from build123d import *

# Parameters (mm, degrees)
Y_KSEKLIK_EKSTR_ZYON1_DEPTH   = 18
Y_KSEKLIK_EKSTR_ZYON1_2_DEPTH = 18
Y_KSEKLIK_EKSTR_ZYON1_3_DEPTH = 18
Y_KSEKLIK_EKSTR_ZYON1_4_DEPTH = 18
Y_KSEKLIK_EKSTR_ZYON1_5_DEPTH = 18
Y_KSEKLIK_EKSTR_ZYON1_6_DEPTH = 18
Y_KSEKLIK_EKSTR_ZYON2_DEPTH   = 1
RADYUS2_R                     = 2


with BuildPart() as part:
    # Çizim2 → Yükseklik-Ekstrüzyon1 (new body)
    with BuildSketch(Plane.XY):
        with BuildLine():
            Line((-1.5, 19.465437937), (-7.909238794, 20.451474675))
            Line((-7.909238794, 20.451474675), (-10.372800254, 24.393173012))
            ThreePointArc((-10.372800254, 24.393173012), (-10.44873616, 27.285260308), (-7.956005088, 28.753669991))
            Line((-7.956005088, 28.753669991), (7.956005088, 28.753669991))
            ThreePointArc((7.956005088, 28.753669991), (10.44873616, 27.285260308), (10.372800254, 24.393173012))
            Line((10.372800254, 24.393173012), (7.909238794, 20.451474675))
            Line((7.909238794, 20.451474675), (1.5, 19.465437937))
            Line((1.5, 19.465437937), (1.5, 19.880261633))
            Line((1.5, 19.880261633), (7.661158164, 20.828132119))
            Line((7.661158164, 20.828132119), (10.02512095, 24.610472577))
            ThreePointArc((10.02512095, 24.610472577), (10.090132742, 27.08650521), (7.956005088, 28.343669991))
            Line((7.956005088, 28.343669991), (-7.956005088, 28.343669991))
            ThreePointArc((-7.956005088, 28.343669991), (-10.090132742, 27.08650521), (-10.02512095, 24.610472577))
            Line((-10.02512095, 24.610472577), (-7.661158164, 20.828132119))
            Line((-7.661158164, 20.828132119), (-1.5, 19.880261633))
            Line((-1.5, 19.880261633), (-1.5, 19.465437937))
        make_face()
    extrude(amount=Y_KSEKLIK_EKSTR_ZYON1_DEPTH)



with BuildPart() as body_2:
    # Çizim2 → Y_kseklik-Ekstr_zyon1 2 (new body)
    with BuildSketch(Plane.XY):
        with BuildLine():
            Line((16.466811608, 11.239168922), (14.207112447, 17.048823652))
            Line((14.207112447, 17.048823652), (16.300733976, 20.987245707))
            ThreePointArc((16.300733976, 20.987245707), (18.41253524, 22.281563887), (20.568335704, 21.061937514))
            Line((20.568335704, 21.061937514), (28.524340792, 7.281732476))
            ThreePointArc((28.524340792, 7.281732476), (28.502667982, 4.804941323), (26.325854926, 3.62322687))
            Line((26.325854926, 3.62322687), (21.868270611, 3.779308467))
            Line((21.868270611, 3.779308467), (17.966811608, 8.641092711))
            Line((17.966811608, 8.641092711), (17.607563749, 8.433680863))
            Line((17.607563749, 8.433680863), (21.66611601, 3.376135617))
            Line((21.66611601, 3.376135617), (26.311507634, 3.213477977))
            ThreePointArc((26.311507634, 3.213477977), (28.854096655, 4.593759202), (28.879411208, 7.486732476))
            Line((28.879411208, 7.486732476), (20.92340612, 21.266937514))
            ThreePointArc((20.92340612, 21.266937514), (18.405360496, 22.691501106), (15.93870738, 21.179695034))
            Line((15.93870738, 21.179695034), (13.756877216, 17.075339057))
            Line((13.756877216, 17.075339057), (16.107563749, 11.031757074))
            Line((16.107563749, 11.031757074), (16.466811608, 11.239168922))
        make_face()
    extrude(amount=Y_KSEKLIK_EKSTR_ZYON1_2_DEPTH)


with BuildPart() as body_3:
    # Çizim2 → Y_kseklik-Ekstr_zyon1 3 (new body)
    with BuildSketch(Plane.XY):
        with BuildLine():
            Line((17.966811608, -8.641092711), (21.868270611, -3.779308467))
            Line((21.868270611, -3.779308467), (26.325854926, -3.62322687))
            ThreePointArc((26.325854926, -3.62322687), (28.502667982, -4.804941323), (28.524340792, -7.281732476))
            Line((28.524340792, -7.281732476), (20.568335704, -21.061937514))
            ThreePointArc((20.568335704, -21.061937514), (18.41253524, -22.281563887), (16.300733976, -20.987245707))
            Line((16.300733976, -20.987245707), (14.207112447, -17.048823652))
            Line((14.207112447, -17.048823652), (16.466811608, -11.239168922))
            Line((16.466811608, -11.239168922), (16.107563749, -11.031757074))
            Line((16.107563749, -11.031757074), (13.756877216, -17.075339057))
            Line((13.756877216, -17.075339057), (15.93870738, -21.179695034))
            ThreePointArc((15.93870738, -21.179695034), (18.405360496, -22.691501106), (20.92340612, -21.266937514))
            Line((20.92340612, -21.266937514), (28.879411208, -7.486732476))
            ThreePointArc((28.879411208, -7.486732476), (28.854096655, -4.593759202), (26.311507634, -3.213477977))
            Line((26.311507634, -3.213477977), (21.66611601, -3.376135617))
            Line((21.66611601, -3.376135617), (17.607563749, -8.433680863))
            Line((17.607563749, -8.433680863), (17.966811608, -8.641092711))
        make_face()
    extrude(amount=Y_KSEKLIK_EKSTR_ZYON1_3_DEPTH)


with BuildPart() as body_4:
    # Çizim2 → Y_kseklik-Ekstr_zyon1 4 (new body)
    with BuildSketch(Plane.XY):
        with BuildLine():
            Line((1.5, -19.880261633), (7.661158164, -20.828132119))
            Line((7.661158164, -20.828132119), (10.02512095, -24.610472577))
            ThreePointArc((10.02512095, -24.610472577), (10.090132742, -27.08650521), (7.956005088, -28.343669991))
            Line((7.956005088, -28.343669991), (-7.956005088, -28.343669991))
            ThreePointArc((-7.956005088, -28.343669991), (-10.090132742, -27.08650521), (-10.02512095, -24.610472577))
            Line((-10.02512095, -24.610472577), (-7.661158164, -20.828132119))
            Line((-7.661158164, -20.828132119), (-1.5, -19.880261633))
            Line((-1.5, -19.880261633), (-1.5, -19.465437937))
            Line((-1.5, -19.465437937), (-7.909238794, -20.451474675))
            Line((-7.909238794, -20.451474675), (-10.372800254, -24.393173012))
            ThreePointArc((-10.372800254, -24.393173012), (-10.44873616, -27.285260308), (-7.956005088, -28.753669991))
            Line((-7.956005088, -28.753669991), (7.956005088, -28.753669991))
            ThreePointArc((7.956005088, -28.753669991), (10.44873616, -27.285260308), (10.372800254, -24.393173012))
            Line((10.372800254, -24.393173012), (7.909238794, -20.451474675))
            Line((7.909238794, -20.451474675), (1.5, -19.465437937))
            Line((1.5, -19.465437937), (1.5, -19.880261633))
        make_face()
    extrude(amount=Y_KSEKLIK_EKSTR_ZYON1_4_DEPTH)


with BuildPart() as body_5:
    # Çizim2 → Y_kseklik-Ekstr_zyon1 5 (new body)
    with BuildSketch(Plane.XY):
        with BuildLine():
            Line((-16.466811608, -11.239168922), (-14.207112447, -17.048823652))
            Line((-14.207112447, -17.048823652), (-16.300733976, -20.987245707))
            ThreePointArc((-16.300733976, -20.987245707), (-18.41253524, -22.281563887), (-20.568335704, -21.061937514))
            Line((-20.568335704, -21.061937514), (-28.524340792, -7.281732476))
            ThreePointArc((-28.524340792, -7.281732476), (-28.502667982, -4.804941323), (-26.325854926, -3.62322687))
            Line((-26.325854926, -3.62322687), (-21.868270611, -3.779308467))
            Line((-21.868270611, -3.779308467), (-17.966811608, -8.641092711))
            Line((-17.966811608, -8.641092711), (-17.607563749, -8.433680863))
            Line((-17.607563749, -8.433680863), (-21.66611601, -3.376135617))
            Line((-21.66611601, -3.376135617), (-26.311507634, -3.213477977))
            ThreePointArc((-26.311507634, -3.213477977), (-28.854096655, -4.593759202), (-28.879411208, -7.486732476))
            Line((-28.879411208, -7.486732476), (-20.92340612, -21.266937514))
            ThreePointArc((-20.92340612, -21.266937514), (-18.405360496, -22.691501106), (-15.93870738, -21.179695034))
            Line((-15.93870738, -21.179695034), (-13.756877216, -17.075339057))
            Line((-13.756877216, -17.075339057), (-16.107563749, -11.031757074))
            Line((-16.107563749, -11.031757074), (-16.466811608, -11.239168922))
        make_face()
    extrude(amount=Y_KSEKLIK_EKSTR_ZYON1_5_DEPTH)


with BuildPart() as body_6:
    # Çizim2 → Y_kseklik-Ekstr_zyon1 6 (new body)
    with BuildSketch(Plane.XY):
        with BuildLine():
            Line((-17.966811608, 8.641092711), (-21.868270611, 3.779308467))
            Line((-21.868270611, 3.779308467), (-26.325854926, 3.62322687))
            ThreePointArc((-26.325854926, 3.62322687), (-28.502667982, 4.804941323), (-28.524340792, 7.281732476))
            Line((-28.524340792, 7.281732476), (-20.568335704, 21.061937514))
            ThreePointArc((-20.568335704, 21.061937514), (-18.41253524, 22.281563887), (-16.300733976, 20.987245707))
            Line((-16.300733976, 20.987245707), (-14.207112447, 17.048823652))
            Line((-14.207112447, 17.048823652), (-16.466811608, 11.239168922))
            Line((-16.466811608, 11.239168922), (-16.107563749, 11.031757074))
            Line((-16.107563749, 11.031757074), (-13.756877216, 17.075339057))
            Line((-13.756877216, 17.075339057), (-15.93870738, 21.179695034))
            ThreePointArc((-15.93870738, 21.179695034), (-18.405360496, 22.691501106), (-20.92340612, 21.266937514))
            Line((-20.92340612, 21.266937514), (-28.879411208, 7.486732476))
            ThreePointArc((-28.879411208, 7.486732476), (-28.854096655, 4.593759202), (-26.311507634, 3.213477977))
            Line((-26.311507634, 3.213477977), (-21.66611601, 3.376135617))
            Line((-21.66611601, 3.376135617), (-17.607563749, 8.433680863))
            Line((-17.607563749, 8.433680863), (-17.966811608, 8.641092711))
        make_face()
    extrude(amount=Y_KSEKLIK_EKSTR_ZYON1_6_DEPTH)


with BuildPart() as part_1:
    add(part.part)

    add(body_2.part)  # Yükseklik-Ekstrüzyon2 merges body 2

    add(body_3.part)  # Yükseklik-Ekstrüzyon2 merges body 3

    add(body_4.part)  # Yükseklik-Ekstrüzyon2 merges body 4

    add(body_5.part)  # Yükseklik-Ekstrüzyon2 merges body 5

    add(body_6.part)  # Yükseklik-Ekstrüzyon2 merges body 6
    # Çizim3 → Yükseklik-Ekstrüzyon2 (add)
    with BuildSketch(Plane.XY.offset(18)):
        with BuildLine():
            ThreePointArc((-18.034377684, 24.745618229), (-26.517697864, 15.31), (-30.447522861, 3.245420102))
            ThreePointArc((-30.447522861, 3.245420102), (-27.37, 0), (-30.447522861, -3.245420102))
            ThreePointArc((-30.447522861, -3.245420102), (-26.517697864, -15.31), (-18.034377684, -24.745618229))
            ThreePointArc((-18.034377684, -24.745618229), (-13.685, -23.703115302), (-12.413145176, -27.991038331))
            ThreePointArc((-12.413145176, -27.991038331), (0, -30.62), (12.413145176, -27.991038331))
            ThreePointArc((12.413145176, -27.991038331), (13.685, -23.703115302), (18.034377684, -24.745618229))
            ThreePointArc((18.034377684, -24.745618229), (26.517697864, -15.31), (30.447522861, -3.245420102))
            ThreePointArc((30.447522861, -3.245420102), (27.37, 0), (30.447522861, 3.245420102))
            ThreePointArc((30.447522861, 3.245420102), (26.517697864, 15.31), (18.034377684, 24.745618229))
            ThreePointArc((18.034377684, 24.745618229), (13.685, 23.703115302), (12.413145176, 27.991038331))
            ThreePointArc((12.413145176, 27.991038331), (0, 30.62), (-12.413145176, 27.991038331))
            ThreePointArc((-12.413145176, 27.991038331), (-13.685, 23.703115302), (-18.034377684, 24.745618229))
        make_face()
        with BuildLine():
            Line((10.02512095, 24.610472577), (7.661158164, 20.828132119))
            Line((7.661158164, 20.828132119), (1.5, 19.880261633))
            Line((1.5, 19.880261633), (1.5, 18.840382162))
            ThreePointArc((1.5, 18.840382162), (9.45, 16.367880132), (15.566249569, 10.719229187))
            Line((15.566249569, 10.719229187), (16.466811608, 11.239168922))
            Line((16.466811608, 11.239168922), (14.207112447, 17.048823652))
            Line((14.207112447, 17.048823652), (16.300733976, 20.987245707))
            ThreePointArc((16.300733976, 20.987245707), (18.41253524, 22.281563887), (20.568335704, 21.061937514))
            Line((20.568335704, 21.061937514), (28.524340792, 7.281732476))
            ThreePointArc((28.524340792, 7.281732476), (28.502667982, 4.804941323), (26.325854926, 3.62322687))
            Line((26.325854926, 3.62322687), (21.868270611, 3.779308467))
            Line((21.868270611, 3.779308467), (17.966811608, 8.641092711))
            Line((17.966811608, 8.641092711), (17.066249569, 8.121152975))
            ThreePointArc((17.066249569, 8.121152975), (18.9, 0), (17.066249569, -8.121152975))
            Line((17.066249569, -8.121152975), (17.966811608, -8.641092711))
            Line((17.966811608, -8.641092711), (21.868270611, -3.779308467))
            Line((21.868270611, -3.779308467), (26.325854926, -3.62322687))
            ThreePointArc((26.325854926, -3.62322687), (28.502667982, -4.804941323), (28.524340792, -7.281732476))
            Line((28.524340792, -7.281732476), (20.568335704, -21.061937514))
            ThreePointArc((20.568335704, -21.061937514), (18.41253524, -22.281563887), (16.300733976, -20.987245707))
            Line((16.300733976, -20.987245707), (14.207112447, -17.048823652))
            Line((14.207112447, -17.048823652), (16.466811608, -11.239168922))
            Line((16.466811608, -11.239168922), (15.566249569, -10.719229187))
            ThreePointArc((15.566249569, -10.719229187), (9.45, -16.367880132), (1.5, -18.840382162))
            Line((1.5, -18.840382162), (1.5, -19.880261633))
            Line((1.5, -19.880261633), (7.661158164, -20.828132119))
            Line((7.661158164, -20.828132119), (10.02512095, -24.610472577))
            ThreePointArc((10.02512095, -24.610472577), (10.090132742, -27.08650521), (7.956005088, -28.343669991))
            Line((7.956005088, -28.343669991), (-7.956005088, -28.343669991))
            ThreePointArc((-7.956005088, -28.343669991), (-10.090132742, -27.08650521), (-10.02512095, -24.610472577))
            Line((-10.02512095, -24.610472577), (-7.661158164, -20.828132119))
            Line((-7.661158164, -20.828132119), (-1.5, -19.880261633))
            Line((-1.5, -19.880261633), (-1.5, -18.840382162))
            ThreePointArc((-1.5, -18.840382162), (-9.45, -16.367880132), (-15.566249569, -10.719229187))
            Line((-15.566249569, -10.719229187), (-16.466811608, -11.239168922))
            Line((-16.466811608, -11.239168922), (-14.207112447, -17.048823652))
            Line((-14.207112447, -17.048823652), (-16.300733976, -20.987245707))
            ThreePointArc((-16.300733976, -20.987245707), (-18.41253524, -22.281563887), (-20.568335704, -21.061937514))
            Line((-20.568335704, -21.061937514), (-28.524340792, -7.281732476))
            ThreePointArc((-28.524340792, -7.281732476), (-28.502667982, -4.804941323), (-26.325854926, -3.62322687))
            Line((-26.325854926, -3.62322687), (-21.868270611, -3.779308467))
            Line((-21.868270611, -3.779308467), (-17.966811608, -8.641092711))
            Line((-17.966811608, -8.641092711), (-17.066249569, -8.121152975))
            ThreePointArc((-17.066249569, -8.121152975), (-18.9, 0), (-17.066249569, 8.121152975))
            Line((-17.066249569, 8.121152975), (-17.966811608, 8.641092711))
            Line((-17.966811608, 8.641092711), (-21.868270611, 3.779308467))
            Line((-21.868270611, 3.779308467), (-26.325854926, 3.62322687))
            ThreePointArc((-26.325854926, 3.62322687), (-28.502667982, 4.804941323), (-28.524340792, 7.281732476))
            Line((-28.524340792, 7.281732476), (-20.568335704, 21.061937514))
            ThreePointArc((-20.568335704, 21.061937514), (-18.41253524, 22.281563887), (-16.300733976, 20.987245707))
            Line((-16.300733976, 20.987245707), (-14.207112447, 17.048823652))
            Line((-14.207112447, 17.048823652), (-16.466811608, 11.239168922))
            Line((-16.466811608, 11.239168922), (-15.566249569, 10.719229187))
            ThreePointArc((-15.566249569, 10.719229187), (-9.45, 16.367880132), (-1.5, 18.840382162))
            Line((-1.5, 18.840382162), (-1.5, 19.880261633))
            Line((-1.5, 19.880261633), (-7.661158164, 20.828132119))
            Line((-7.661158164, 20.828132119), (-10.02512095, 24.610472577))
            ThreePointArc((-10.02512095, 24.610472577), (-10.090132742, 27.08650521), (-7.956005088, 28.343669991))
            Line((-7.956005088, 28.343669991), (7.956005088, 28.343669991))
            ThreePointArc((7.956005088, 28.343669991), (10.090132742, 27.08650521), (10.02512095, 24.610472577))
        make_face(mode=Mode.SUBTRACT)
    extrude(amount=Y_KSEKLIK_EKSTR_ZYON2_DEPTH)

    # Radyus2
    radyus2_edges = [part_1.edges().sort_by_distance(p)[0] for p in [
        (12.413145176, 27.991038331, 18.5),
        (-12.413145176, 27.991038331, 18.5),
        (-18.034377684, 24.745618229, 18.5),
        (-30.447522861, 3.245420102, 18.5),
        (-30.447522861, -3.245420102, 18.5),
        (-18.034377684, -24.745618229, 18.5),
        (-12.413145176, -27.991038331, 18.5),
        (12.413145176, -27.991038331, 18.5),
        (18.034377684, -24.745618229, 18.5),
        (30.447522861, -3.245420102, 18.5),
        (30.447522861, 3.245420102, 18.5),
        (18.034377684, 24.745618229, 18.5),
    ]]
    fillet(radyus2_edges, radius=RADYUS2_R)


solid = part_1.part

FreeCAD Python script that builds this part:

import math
import FreeCAD as App
import Part
import Sketcher

V = App.Vector
Q = App.Units.Quantity


def edges_at(feature, points):
    """Names of the edges that pass closest to the given points."""
    edges = feature.Shape.Edges
    near = lambda p: min(range(len(edges)), key=lambda i: edges[i].distToShape(Part.Vertex(*p))[0])
    return sorted({f"Edge{near(p) + 1}" for p in points})

doc = App.newDocument("Part")
body = doc.addObject("PartDesign::Body", "Body")

# Sketch on XY plane
sketch1 = body.newObject("Sketcher::SketchObject", "Sketch")
sketch1.AttachmentSupport = (doc.getObject("XY_Plane"), [""])
sketch1.MapMode = "FlatFace"
sketch1.addGeometry([
    Part.LineSegment(V(-7.91, 20.45, 0), V(-1.5, 19.47, 0)),  # 0
    Part.LineSegment(V(-1.5, 19.47, 0), V(-1.5, 19.88, 0)),  # 1
    Part.LineSegment(V(-1.5, 19.88, 0), V(-7.66, 20.83, 0)),  # 2
    Part.LineSegment(V(-7.66, 20.83, 0), V(-10.03, 24.61, 0)),  # 3
    Part.ArcOfCircle(Part.Circle(V(-7.96, 25.9, 0), V(0, 0, 1), 2.44), math.radians(90), math.radians(212)),  # 4
    Part.LineSegment(V(-7.96, 28.34, 0), V(7.96, 28.34, 0)),  # 5
    Part.ArcOfCircle(Part.Circle(V(7.96, 25.9, 0), V(0, 0, 1), 2.44), math.radians(-32), math.radians(90)),  # 6
    Part.LineSegment(V(10.03, 24.61, 0), V(7.66, 20.83, 0)),  # 7
    Part.LineSegment(V(7.66, 20.83, 0), V(1.5, 19.88, 0)),  # 8
    Part.LineSegment(V(1.5, 19.88, 0), V(1.5, 19.47, 0)),  # 9
    Part.LineSegment(V(1.5, 19.47, 0), V(7.91, 20.45, 0)),  # 10
    Part.LineSegment(V(7.91, 20.45, 0), V(10.37, 24.39, 0)),  # 11
    Part.ArcOfCircle(Part.Circle(V(7.96, 25.9, 0), V(0, 0, 1), 2.85), math.radians(-32), math.radians(90)),  # 12
    Part.LineSegment(V(7.96, 28.75, 0), V(-7.96, 28.75, 0)),  # 13
    Part.ArcOfCircle(Part.Circle(V(-7.96, 25.9, 0), V(0, 0, 1), 2.85), math.radians(90), math.radians(212)),  # 14
    Part.LineSegment(V(-10.37, 24.39, 0), V(-7.91, 20.45, 0)),  # 15
], False)
sketch1.addConstraint([
    Sketcher.Constraint("Coincident", 0, 2, 1, 1),
    Sketcher.Constraint("Coincident", 1, 2, 2, 1),
    Sketcher.Constraint("Coincident", 2, 2, 3, 1),
    Sketcher.Constraint("Tangent", 3, 2, 4, 2),
    Sketcher.Constraint("Tangent", 4, 1, 5, 1),
    Sketcher.Constraint("Tangent", 5, 2, 6, 2),
    Sketcher.Constraint("Tangent", 6, 1, 7, 1),
    Sketcher.Constraint("Coincident", 7, 2, 8, 1),
    Sketcher.Constraint("Coincident", 8, 2, 9, 1),
    Sketcher.Constraint("Coincident", 9, 2, 10, 1),
    Sketcher.Constraint("Coincident", 10, 2, 11, 1),
    Sketcher.Constraint("Tangent", 11, 2, 12, 1),
    Sketcher.Constraint("Tangent", 12, 2, 13, 1),
    Sketcher.Constraint("Tangent", 13, 2, 14, 1),
    Sketcher.Constraint("Tangent", 14, 2, 15, 1),
    Sketcher.Constraint("Coincident", 15, 2, 0, 1),
    Sketcher.Constraint("Vertical", 1),
    Sketcher.Constraint("Horizontal", 5),
    Sketcher.Constraint("Vertical", 9),
    Sketcher.Constraint("Horizontal", 13),
    Sketcher.Constraint("Coincident", 12, 3, 6, 3),
    Sketcher.Constraint("Coincident", 14, 3, 4, 3),
    Sketcher.Constraint("Equal", 4, 6),
    Sketcher.Constraint("Symmetric", 3, 2, 6, 1, -2),
    Sketcher.Constraint("Symmetric", 1, 2, 8, 2, -2),
    Sketcher.Constraint("Symmetric", 10, 2, 15, 2, -2),
    Sketcher.Constraint("Parallel", 0, 2),
    Sketcher.Constraint("Parallel", 8, 10),
    Sketcher.Constraint("Parallel", 7, 11),
    Sketcher.Constraint("Horizontal", 2, 2, 7, 2),
    Sketcher.Constraint("Radius", 4, 2.44),
    Sketcher.Constraint("Radius", 12, 2.85),
    Sketcher.Constraint("DistanceX", 1, 2, 8, 2, 3.0),
    Sketcher.Constraint("DistanceX", 5, 1, 5, 2, 15.91201),
    Sketcher.Constraint("DistanceX", -1, 1, 11, 2, 10.3728),
    Sketcher.Constraint("DistanceY", 15, 2, 14, 2, 3.941698),
    Sketcher.Constraint("DistanceY", 1, 1, 1, 2, 0.414824),
    Sketcher.Constraint("DistanceY", -1, 1, 4, 3, 25.90367),
    Sketcher.Constraint("DistanceY", -1, 1, 1, 2, 19.880262),
])
pad1 = body.newObject("PartDesign::Pad", "Pad")
pad1.Profile = sketch1
pad1.Length = 18
body2 = doc.addObject("PartDesign::Body", "Body001")

# Sketch on XY plane
sketch2 = body2.newObject("Sketcher::SketchObject", "Sketch001")
sketch2.AttachmentSupport = (doc.getObject("XY_Plane001"), [""])
sketch2.MapMode = "FlatFace"
sketch2.addGeometry([
    Part.LineSegment(V(16.47, 11.24, 0), V(14.21, 17.05, 0)),  # 0
    Part.LineSegment(V(14.21, 17.05, 0), V(16.3, 20.99, 0)),  # 1
    Part.ArcOfCircle(Part.Circle(V(18.46, 19.84, 0), V(0, 0, 1), 2.44), math.radians(30), math.radians(152)),  # 2
    Part.LineSegment(V(20.57, 21.06, 0), V(28.52, 7.28, 0)),  # 3
    Part.ArcOfCircle(Part.Circle(V(26.41, 6.06, 0), V(0, 0, 1), 2.44), math.radians(-92), math.radians(30)),  # 4
    Part.LineSegment(V(26.33, 3.62, 0), V(21.87, 3.78, 0)),  # 5
    Part.LineSegment(V(21.87, 3.78, 0), V(17.97, 8.64, 0)),  # 6
    Part.LineSegment(V(17.97, 8.64, 0), V(17.61, 8.43, 0)),  # 7
    Part.LineSegment(V(17.61, 8.43, 0), V(21.67, 3.38, 0)),  # 8
    Part.LineSegment(V(21.67, 3.38, 0), V(26.31, 3.21, 0)),  # 9
    Part.ArcOfCircle(Part.Circle(V(26.41, 6.06, 0), V(0, 0, 1), 2.85), math.radians(-92), math.radians(30)),  # 10
    Part.LineSegment(V(28.88, 7.49, 0), V(20.92, 21.27, 0)),  # 11
    Part.ArcOfCircle(Part.Circle(V(18.46, 19.84, 0), V(0, 0, 1), 2.85), math.radians(30), math.radians(152)),  # 12
    Part.LineSegment(V(15.94, 21.18, 0), V(13.76, 17.08, 0)),  # 13
    Part.LineSegment(V(13.76, 17.08, 0), V(16.11, 11.03, 0)),  # 14
    Part.LineSegment(V(16.11, 11.03, 0), V(16.47, 11.24, 0)),  # 15
], False)
sketch2.addConstraint([
    Sketcher.Constraint("Coincident", 0, 2, 1, 1),
    Sketcher.Constraint("Tangent", 1, 2, 2, 2),
    Sketcher.Constraint("Tangent", 2, 1, 3, 1),
    Sketcher.Constraint("Tangent", 3, 2, 4, 2),
    Sketcher.Constraint("Tangent", 4, 1, 5, 1),
    Sketcher.Constraint("Coincident", 5, 2, 6, 1),
    Sketcher.Constraint("Coincident", 6, 2, 7, 1),
    Sketcher.Constraint("Coincident", 7, 2, 8, 1),
    Sketcher.Constraint("Coincident", 8, 2, 9, 1),
    Sketcher.Constraint("Tangent", 9, 2, 10, 1),
    Sketcher.Constraint("Tangent", 10, 2, 11, 1),
    Sketcher.Constraint("Tangent", 11, 2, 12, 1),
    Sketcher.Constraint("Tangent", 12, 2, 13, 1),
    Sketcher.Constraint("Coincident", 13, 2, 14, 1),
    Sketcher.Constraint("Coincident", 14, 2, 15, 1),
    Sketcher.Constraint("Coincident", 15, 2, 0, 1),
    Sketcher.Constraint("Coincident", 10, 3, 4, 3),
    Sketcher.Constraint("Coincident", 12, 3, 2, 3),
    Sketcher.Constraint("Equal", 2, 4),
    Sketcher.Constraint("Equal", 10, 12),
    Sketcher.Constraint("Perpendicular", 3, 7),
    Sketcher.Constraint("Parallel", 6, 8),
    Sketcher.Constraint("Parallel", 5, 9),
    Sketcher.Constraint("Parallel", 1, 13),
    Sketcher.Constraint("Parallel", 0, 14),
    Sketcher.Constraint("Perpendicular", 11, 15),
    Sketcher.Constraint("Equal", 1, 5),
    Sketcher.Constraint("Equal", 0, 6),
    Sketcher.Constraint("Equal", 9, 13),
    Sketcher.Constraint("Equal", 8, 14),
    Sketcher.Constraint("Equal", 7, 15),
    Sketcher.Constraint("Angle", 3, Q("-60 deg")),
    Sketcher.Constraint("Radius", 2, 2.44),
    Sketcher.Constraint("Radius", 10, 2.85),
    Sketcher.Constraint("DistanceX", 14, 2, 7, 2, 1.5),
    Sketcher.Constraint("DistanceX", 1, 2, 12, 3, 2.1545),
    Sketcher.Constraint("DistanceX", 0, 2, 6, 2, 3.759699),
    Sketcher.Constraint("DistanceY", 13, 2, 2, 3, 2.766598),
    Sketcher.Constraint("Distance", 3, 15.91201),
    Sketcher.Constraint("DistanceX", -1, 1, 4, 3, 26.411239),
    Sketcher.Constraint("DistanceX", -1, 1, 5, 2, 21.868271),
    Sketcher.Constraint("DistanceY", -1, 1, 5, 2, 3.779308),
])
pad2 = body2.newObject("PartDesign::Pad", "Pad001")
pad2.Profile = sketch2
pad2.Length = 18
body3 = doc.addObject("PartDesign::Body", "Body002")

# Sketch on XY plane
sketch3 = body3.newObject("Sketcher::SketchObject", "Sketch002")
sketch3.AttachmentSupport = (doc.getObject("XY_Plane002"), [""])
sketch3.MapMode = "FlatFace"
sketch3.addGeometry([
    Part.LineSegment(V(17.97, -8.64, 0), V(21.87, -3.78, 0)),  # 0
    Part.LineSegment(V(21.87, -3.78, 0), V(26.33, -3.62, 0)),  # 1
    Part.ArcOfCircle(Part.Circle(V(26.41, -6.06, 0), V(0, 0, 1), 2.44), math.radians(-30), math.radians(92)),  # 2
    Part.LineSegment(V(28.52, -7.28, 0), V(20.57, -21.06, 0)),  # 3
    Part.ArcOfCircle(Part.Circle(V(18.46, -19.84, 0), V(0, 0, 1), 2.44), math.radians(-152), math.radians(-30)),  # 4
    Part.LineSegment(V(16.3, -20.99, 0), V(14.21, -17.05, 0)),  # 5
    Part.LineSegment(V(14.21, -17.05, 0), V(16.47, -11.24, 0)),  # 6
    Part.LineSegment(V(16.47, -11.24, 0), V(16.11, -11.03, 0)),  # 7
    Part.LineSegment(V(16.11, -11.03, 0), V(13.76, -17.08, 0)),  # 8
    Part.LineSegment(V(13.76, -17.08, 0), V(15.94, -21.18, 0)),  # 9
    Part.ArcOfCircle(Part.Circle(V(18.46, -19.84, 0), V(0, 0, 1), 2.85), math.radians(-152), math.radians(-30)),  # 10
    Part.LineSegment(V(20.92, -21.27, 0), V(28.88, -7.49, 0)),  # 11
    Part.ArcOfCircle(Part.Circle(V(26.41, -6.06, 0), V(0, 0, 1), 2.85), math.radians(-30), math.radians(92)),  # 12
    Part.LineSegment(V(26.31, -3.21, 0), V(21.67, -3.38, 0)),  # 13
    Part.LineSegment(V(21.67, -3.38, 0), V(17.61, -8.43, 0)),  # 14
    Part.LineSegment(V(17.61, -8.43, 0), V(17.97, -8.64, 0)),  # 15
], False)
sketch3.addConstraint([
    Sketcher.Constraint("Coincident", 0, 2, 1, 1),
    Sketcher.Constraint("Tangent", 1, 2, 2, 2),
    Sketcher.Constraint("Tangent", 2, 1, 3, 1),
    Sketcher.Constraint("Tangent", 3, 2, 4, 2),
    Sketcher.Constraint("Tangent", 4, 1, 5, 1),
    Sketcher.Constraint("Coincident", 5, 2, 6, 1),
    Sketcher.Constraint("Coincident", 6, 2, 7, 1),
    Sketcher.Constraint("Coincident", 7, 2, 8, 1),
    Sketcher.Constraint("Coincident", 8, 2, 9, 1),
    Sketcher.Constraint("Tangent", 9, 2, 10, 1),
    Sketcher.Constraint("Tangent", 10, 2, 11, 1),
    Sketcher.Constraint("Tangent", 11, 2, 12, 1),
    Sketcher.Constraint("Tangent", 12, 2, 13, 1),
    Sketcher.Constraint("Coincident", 13, 2, 14, 1),
    Sketcher.Constraint("Coincident", 14, 2, 15, 1),
    Sketcher.Constraint("Coincident", 15, 2, 0, 1),
    Sketcher.Constraint("Coincident", 10, 3, 4, 3),
    Sketcher.Constraint("Coincident", 12, 3, 2, 3),
    Sketcher.Constraint("Equal", 2, 4),
    Sketcher.Constraint("Equal", 10, 12),
    Sketcher.Constraint("Perpendicular", 3, 7),
    Sketcher.Constraint("Parallel", 6, 8),
    Sketcher.Constraint("Parallel", 5, 9),
    Sketcher.Constraint("Parallel", 1, 13),
    Sketcher.Constraint("Parallel", 0, 14),
    Sketcher.Constraint("Perpendicular", 11, 15),
    Sketcher.Constraint("Equal", 1, 5),
    Sketcher.Constraint("Equal", 0, 6),
    Sketcher.Constraint("Equal", 9, 13),
    Sketcher.Constraint("Equal", 8, 14),
    Sketcher.Constraint("Equal", 7, 15),
    Sketcher.Constraint("Angle", 3, Q("-120 deg")),
    Sketcher.Constraint("Radius", 2, 2.44),
    Sketcher.Constraint("Radius", 10, 2.85),
    Sketcher.Constraint("DistanceX", 7, 2, 14, 2, 1.5),
    Sketcher.Constraint("DistanceX", 4, 1, 10, 3, 2.1545),
    Sketcher.Constraint("DistanceX", 5, 2, 6, 2, 2.259699),
    Sketcher.Constraint("DistanceY", 4, 3, 8, 2, 2.766598),
    Sketcher.Constraint("Distance", 3, 15.91201),
    Sketcher.Constraint("DistanceX", -1, 1, 2, 3, 26.411239),
    Sketcher.Constraint("DistanceX", -1, 1, 0, 2, 21.868271),
    Sketcher.Constraint("DistanceY", 0, 2, -1, 1, 3.779308),
])
pad3 = body3.newObject("PartDesign::Pad", "Pad002")
pad3.Profile = sketch3
pad3.Length = 18
body4 = doc.addObject("PartDesign::Body", "Body003")

# Sketch on XY plane
sketch4 = body4.newObject("Sketcher::SketchObject", "Sketch003")
sketch4.AttachmentSupport = (doc.getObject("XY_Plane003"), [""])
sketch4.MapMode = "FlatFace"
sketch4.addGeometry([
    Part.LineSegment(V(1.5, -19.88, 0), V(7.66, -20.83, 0)),  # 0
    Part.LineSegment(V(7.66, -20.83, 0), V(10.03, -24.61, 0)),  # 1
    Part.ArcOfCircle(Part.Circle(V(7.96, -25.9, 0), V(0, 0, 1), 2.44), math.radians(-90), math.radians(32)),  # 2
    Part.LineSegment(V(7.96, -28.34, 0), V(-7.96, -28.34, 0)),  # 3
    Part.ArcOfCircle(Part.Circle(V(-7.96, -25.9, 0), V(0, 0, 1), 2.44), math.radians(148), math.radians(270)),  # 4
    Part.LineSegment(V(-10.03, -24.61, 0), V(-7.66, -20.83, 0)),  # 5
    Part.LineSegment(V(-7.66, -20.83, 0), V(-1.5, -19.88, 0)),  # 6
    Part.LineSegment(V(-1.5, -19.88, 0), V(-1.5, -19.47, 0)),  # 7
    Part.LineSegment(V(-1.5, -19.47, 0), V(-7.91, -20.45, 0)),  # 8
    Part.LineSegment(V(-7.91, -20.45, 0), V(-10.37, -24.39, 0)),  # 9
    Part.ArcOfCircle(Part.Circle(V(-7.96, -25.9, 0), V(0, 0, 1), 2.85), math.radians(148), math.radians(270)),  # 10
    Part.LineSegment(V(-7.96, -28.75, 0), V(7.96, -28.75, 0)),  # 11
    Part.ArcOfCircle(Part.Circle(V(7.96, -25.9, 0), V(0, 0, 1), 2.85), math.radians(-90), math.radians(32)),  # 12
    Part.LineSegment(V(10.37, -24.39, 0), V(7.91, -20.45, 0)),  # 13
    Part.LineSegment(V(7.91, -20.45, 0), V(1.5, -19.47, 0)),  # 14
    Part.LineSegment(V(1.5, -19.47, 0), V(1.5, -19.88, 0)),  # 15
], False)
sketch4.addConstraint([
    Sketcher.Constraint("Coincident", 0, 2, 1, 1),
    Sketcher.Constraint("Tangent", 1, 2, 2, 2),
    Sketcher.Constraint("Tangent", 2, 1, 3, 1),
    Sketcher.Constraint("Tangent", 3, 2, 4, 2),
    Sketcher.Constraint("Tangent", 4, 1, 5, 1),
    Sketcher.Constraint("Coincident", 5, 2, 6, 1),
    Sketcher.Constraint("Coincident", 6, 2, 7, 1),
    Sketcher.Constraint("Coincident", 7, 2, 8, 1),
    Sketcher.Constraint("Coincident", 8, 2, 9, 1),
    Sketcher.Constraint("Tangent", 9, 2, 10, 1),
    Sketcher.Constraint("Tangent", 10, 2, 11, 1),
    Sketcher.Constraint("Tangent", 11, 2, 12, 1),
    Sketcher.Constraint("Tangent", 12, 2, 13, 1),
    Sketcher.Constraint("Coincident", 13, 2, 14, 1),
    Sketcher.Constraint("Coincident", 14, 2, 15, 1),
    Sketcher.Constraint("Coincident", 15, 2, 0, 1),
    Sketcher.Constraint("Horizontal", 3),
    Sketcher.Constraint("Vertical", 7),
    Sketcher.Constraint("Horizontal", 11),
    Sketcher.Constraint("Vertical", 15),
    Sketcher.Constraint("Coincident", 10, 3, 4, 3),
    Sketcher.Constraint("Coincident", 12, 3, 2, 3),
    Sketcher.Constraint("Equal", 2, 4),
    Sketcher.Constraint("Symmetric", 1, 2, 4, 1, -2),
    Sketcher.Constraint("Symmetric", 8, 2, 13, 2, -2),
    Sketcher.Constraint("Symmetric", 7, 2, 14, 2, -2),
    Sketcher.Constraint("Parallel", 6, 8),
    Sketcher.Constraint("Parallel", 5, 9),
    Sketcher.Constraint("Parallel", 0, 14),
    Sketcher.Constraint("Horizontal", 0, 2, 5, 2),
    Sketcher.Constraint("Radius", 2, 2.44),
    Sketcher.Constraint("Radius", 10, 2.85),
    Sketcher.Constraint("DistanceX", 7, 2, 14, 2, 3.0),
    Sketcher.Constraint("DistanceX", 3, 2, 3, 1, 15.91201),
    Sketcher.Constraint("DistanceX", 9, 2, -1, 1, 10.3728),
    Sketcher.Constraint("DistanceY", 12, 2, 13, 2, 3.941698),
    Sketcher.Constraint("DistanceY", 7, 1, 7, 2, 0.414824),
    Sketcher.Constraint("DistanceY", 2, 3, -1, 1, 25.90367),
    Sketcher.Constraint("DistanceX", -1, 1, 0, 2, 7.661158),
])
pad4 = body4.newObject("PartDesign::Pad", "Pad003")
pad4.Profile = sketch4
pad4.Length = 18
body5 = doc.addObject("PartDesign::Body", "Body004")

# Sketch on XY plane
sketch5 = body5.newObject("Sketcher::SketchObject", "Sketch004")
sketch5.AttachmentSupport = (doc.getObject("XY_Plane004"), [""])
sketch5.MapMode = "FlatFace"
sketch5.addGeometry([
    Part.LineSegment(V(-16.47, -11.24, 0), V(-14.21, -17.05, 0)),  # 0
    Part.LineSegment(V(-14.21, -17.05, 0), V(-16.3, -20.99, 0)),  # 1
    Part.ArcOfCircle(Part.Circle(V(-18.46, -19.84, 0), V(0, 0, 1), 2.44), math.radians(-150), math.radians(-28)),  # 2
    Part.LineSegment(V(-20.57, -21.06, 0), V(-28.52, -7.28, 0)),  # 3
    Part.ArcOfCircle(Part.Circle(V(-26.41, -6.06, 0), V(0, 0, 1), 2.44), math.radians(88), math.radians(210)),  # 4
    Part.LineSegment(V(-26.33, -3.62, 0), V(-21.87, -3.78, 0)),  # 5
    Part.LineSegment(V(-21.87, -3.78, 0), V(-17.97, -8.64, 0)),  # 6
    Part.LineSegment(V(-17.97, -8.64, 0), V(-17.61, -8.43, 0)),  # 7
    Part.LineSegment(V(-17.61, -8.43, 0), V(-21.67, -3.38, 0)),  # 8
    Part.LineSegment(V(-21.67, -3.38, 0), V(-26.31, -3.21, 0)),  # 9
    Part.ArcOfCircle(Part.Circle(V(-26.41, -6.06, 0), V(0, 0, 1), 2.85), math.radians(88), math.radians(210)),  # 10
    Part.LineSegment(V(-28.88, -7.49, 0), V(-20.92, -21.27, 0)),  # 11
    Part.ArcOfCircle(Part.Circle(V(-18.46, -19.84, 0), V(0, 0, 1), 2.85), math.radians(-150), math.radians(-28)),  # 12
    Part.LineSegment(V(-15.94, -21.18, 0), V(-13.76, -17.08, 0)),  # 13
    Part.LineSegment(V(-13.76, -17.08, 0), V(-16.11, -11.03, 0)),  # 14
    Part.LineSegment(V(-16.11, -11.03, 0), V(-16.47, -11.24, 0)),  # 15
], False)
sketch5.addConstraint([
    Sketcher.Constraint("Coincident", 0, 2, 1, 1),
    Sketcher.Constraint("Tangent", 1, 2, 2, 2),
    Sketcher.Constraint("Tangent", 2, 1, 3, 1),
    Sketcher.Constraint("Tangent", 3, 2, 4, 2),
    Sketcher.Constraint("Tangent", 4, 1, 5, 1),
    Sketcher.Constraint("Coincident", 5, 2, 6, 1),
    Sketcher.Constraint("Coincident", 6, 2, 7, 1),
    Sketcher.Constraint("Coincident", 7, 2, 8, 1),
    Sketcher.Constraint("Coincident", 8, 2, 9, 1),
    Sketcher.Constraint("Tangent", 9, 2, 10, 1),
    Sketcher.Constraint("Tangent", 10, 2, 11, 1),
    Sketcher.Constraint("Tangent", 11, 2, 12, 1),
    Sketcher.Constraint("Tangent", 12, 2, 13, 1),
    Sketcher.Constraint("Coincident", 13, 2, 14, 1),
    Sketcher.Constraint("Coincident", 14, 2, 15, 1),
    Sketcher.Constraint("Coincident", 15, 2, 0, 1),
    Sketcher.Constraint("Coincident", 10, 3, 4, 3),
    Sketcher.Constraint("Coincident", 12, 3, 2, 3),
    Sketcher.Constraint("Equal", 2, 4),
    Sketcher.Constraint("Equal", 10, 12),
    Sketcher.Constraint("Perpendicular", 3, 7),
    Sketcher.Constraint("Parallel", 6, 8),
    Sketcher.Constraint("Parallel", 5, 9),
    Sketcher.Constraint("Parallel", 1, 13),
    Sketcher.Constraint("Parallel", 0, 14),
    Sketcher.Constraint("Perpendicular", 11, 15),
    Sketcher.Constraint("Equal", 1, 5),
    Sketcher.Constraint("Equal", 0, 6),
    Sketcher.Constraint("Equal", 9, 13),
    Sketcher.Constraint("Equal", 8, 14),
    Sketcher.Constraint("Equal", 7, 15),
    Sketcher.Constraint("Angle", 3, Q("120 deg")),
    Sketcher.Constraint("Radius", 2, 2.44),
    Sketcher.Constraint("Radius", 10, 2.85),
    Sketcher.Constraint("DistanceX", 7, 2, 14, 2, 1.5),
    Sketcher.Constraint("DistanceX", 12, 3, 1, 2, 2.1545),
    Sketcher.Constraint("DistanceX", 6, 2, 0, 2, 3.759699),
    Sketcher.Constraint("DistanceY", 2, 3, 13, 2, 2.766598),
    Sketcher.Constraint("Distance", 3, 15.91201),
    Sketcher.Constraint("DistanceX", 4, 3, -1, 1, 26.411239),
    Sketcher.Constraint("DistanceX", 5, 2, -1, 1, 21.868271),
    Sketcher.Constraint("DistanceY", 5, 2, -1, 1, 3.779308),
])
pad5 = body5.newObject("PartDesign::Pad", "Pad004")
pad5.Profile = sketch5
pad5.Length = 18
body6 = doc.addObject("PartDesign::Body", "Body005")

# Sketch on XY plane
sketch6 = body6.newObject("Sketcher::SketchObject", "Sketch005")
sketch6.AttachmentSupport = (doc.getObject("XY_Plane005"), [""])
sketch6.MapMode = "FlatFace"
sketch6.addGeometry([
    Part.LineSegment(V(-17.97, 8.64, 0), V(-21.87, 3.78, 0)),  # 0
    Part.LineSegment(V(-21.87, 3.78, 0), V(-26.33, 3.62, 0)),  # 1
    Part.ArcOfCircle(Part.Circle(V(-26.41, 6.06, 0), V(0, 0, 1), 2.44), math.radians(150), math.radians(272)),  # 2
    Part.LineSegment(V(-28.52, 7.28, 0), V(-20.57, 21.06, 0)),  # 3
    Part.ArcOfCircle(Part.Circle(V(-18.46, 19.84, 0), V(0, 0, 1), 2.44), math.radians(28), math.radians(150)),  # 4
    Part.LineSegment(V(-16.3, 20.99, 0), V(-14.21, 17.05, 0)),  # 5
    Part.LineSegment(V(-14.21, 17.05, 0), V(-16.47, 11.24, 0)),  # 6
    Part.LineSegment(V(-16.47, 11.24, 0), V(-16.11, 11.03, 0)),  # 7
    Part.LineSegment(V(-16.11, 11.03, 0), V(-13.76, 17.08, 0)),  # 8
    Part.LineSegment(V(-13.76, 17.08, 0), V(-15.94, 21.18, 0)),  # 9
    Part.ArcOfCircle(Part.Circle(V(-18.46, 19.84, 0), V(0, 0, 1), 2.85), math.radians(28), math.radians(150)),  # 10
    Part.LineSegment(V(-20.92, 21.27, 0), V(-28.88, 7.49, 0)),  # 11
    Part.ArcOfCircle(Part.Circle(V(-26.41, 6.06, 0), V(0, 0, 1), 2.85), math.radians(150), math.radians(272)),  # 12
    Part.LineSegment(V(-26.31, 3.21, 0), V(-21.67, 3.38, 0)),  # 13
    Part.LineSegment(V(-21.67, 3.38, 0), V(-17.61, 8.43, 0)),  # 14
    Part.LineSegment(V(-17.61, 8.43, 0), V(-17.97, 8.64, 0)),  # 15
], False)
sketch6.addConstraint([
    Sketcher.Constraint("Coincident", 0, 2, 1, 1),
    Sketcher.Constraint("Tangent", 1, 2, 2, 2),
    Sketcher.Constraint("Tangent", 2, 1, 3, 1),
    Sketcher.Constraint("Tangent", 3, 2, 4, 2),
    Sketcher.Constraint("Tangent", 4, 1, 5, 1),
    Sketcher.Constraint("Coincident", 5, 2, 6, 1),
    Sketcher.Constraint("Coincident", 6, 2, 7, 1),
    Sketcher.Constraint("Coincident", 7, 2, 8, 1),
    Sketcher.Constraint("Coincident", 8, 2, 9, 1),
    Sketcher.Constraint("Tangent", 9, 2, 10, 1),
    Sketcher.Constraint("Tangent", 10, 2, 11, 1),
    Sketcher.Constraint("Tangent", 11, 2, 12, 1),
    Sketcher.Constraint("Tangent", 12, 2, 13, 1),
    Sketcher.Constraint("Coincident", 13, 2, 14, 1),
    Sketcher.Constraint("Coincident", 14, 2, 15, 1),
    Sketcher.Constraint("Coincident", 15, 2, 0, 1),
    Sketcher.Constraint("Coincident", 10, 3, 4, 3),
    Sketcher.Constraint("Coincident", 12, 3, 2, 3),
    Sketcher.Constraint("Equal", 2, 4),
    Sketcher.Constraint("Equal", 10, 12),
    Sketcher.Constraint("Perpendicular", 3, 7),
    Sketcher.Constraint("Parallel", 6, 8),
    Sketcher.Constraint("Parallel", 5, 9),
    Sketcher.Constraint("Parallel", 1, 13),
    Sketcher.Constraint("Parallel", 0, 14),
    Sketcher.Constraint("Perpendicular", 11, 15),
    Sketcher.Constraint("Equal", 1, 5),
    Sketcher.Constraint("Equal", 0, 6),
    Sketcher.Constraint("Equal", 9, 13),
    Sketcher.Constraint("Equal", 8, 14),
    Sketcher.Constraint("Equal", 7, 15),
    Sketcher.Constraint("Angle", 3, Q("60 deg")),
    Sketcher.Constraint("Radius", 2, 2.44),
    Sketcher.Constraint("Radius", 10, 2.85),
    Sketcher.Constraint("DistanceX", 14, 2, 7, 2, 1.5),
    Sketcher.Constraint("DistanceX", 10, 3, 4, 1, 2.1545),
    Sketcher.Constraint("DistanceX", 6, 2, 5, 2, 2.259699),
    Sketcher.Constraint("DistanceY", 8, 2, 4, 3, 2.766598),
    Sketcher.Constraint("Distance", 3, 15.91201),
    Sketcher.Constraint("DistanceX", 2, 3, -1, 1, 26.411239),
    Sketcher.Constraint("DistanceX", 0, 2, -1, 1, 21.868271),
    Sketcher.Constraint("DistanceY", -1, 1, 0, 2, 3.779308),
])
pad6 = body6.newObject("PartDesign::Pad", "Pad005")
pad6.Profile = sketch6
pad6.Length = 18
body.AllowCompound = True
doc.recompute()

boolean = body.newObject("PartDesign::Boolean", "Boolean")
boolean.Type = "Fuse"
boolean.addObjects([body2])
doc.recompute()

boolean2 = body.newObject("PartDesign::Boolean", "Boolean001")
boolean2.Type = "Fuse"
boolean2.addObjects([body3])
doc.recompute()

boolean3 = body.newObject("PartDesign::Boolean", "Boolean002")
boolean3.Type = "Fuse"
boolean3.addObjects([body4])
doc.recompute()

boolean4 = body.newObject("PartDesign::Boolean", "Boolean003")
boolean4.Type = "Fuse"
boolean4.addObjects([body5])
doc.recompute()

boolean5 = body.newObject("PartDesign::Boolean", "Boolean004")
boolean5.Type = "Fuse"
boolean5.addObjects([body6])

# Sketch on XY plane
sketch7 = body.newObject("Sketcher::SketchObject", "Sketch006")
sketch7.AttachmentSupport = (doc.getObject("XY_Plane"), [""])
sketch7.MapMode = "FlatFace"
sketch7.AttachmentOffset = App.Placement(V(0, 0, 18), App.Rotation())
sketch7.addGeometry([
    Part.ArcOfCircle(Part.Circle(V(0, 0, 0), V(0, 0, 1), 30.6), math.radians(126), math.radians(174)),  # 0
    Part.ArcOfCircle(Part.Circle(V(-30.6, 0, 0), V(0, 0, 1), 3.2), math.radians(-87), math.radians(87)),  # 1
    Part.ArcOfCircle(Part.Circle(V(0, 0, 0), V(0, 0, 1), 30.6), math.radians(-174), math.radians(-126)),  # 2
    Part.ArcOfCircle(Part.Circle(V(-15.3, -26.5, 0), V(0, 0, 1), 3.2), math.radians(-27), math.radians(147)),  # 3
    Part.ArcOfCircle(Part.Circle(V(0, 0, 0), V(0, 0, 1), 30.6), math.radians(-114), math.radians(-66)),  # 4
    Part.ArcOfCircle(Part.Circle(V(15.3, -26.5, 0), V(0, 0, 1), 3.2), math.radians(33), math.radians(207)),  # 5
    Part.ArcOfCircle(Part.Circle(V(0, 0, 0), V(0, 0, 1), 30.6), math.radians(-54), math.radians(-6)),  # 6
    Part.ArcOfCircle(Part.Circle(V(30.6, 0, 0), V(0, 0, 1), 3.2), math.radians(93), math.radians(267)),  # 7
    Part.ArcOfCircle(Part.Circle(V(0, 0, 0), V(0, 0, 1), 30.6), math.radians(6), math.radians(54)),  # 8
    Part.ArcOfCircle(Part.Circle(V(15.3, 26.5, 0), V(0, 0, 1), 3.2), math.radians(153), math.radians(327)),  # 9
    Part.ArcOfCircle(Part.Circle(V(0, 0, 0), V(0, 0, 1), 30.6), math.radians(66), math.radians(114)),  # 10
    Part.ArcOfCircle(Part.Circle(V(-15.3, 26.5, 0), V(0, 0, 1), 3.2), math.radians(-147), math.radians(27)),  # 11
    Part.ArcOfCircle(Part.Circle(V(8, 25.9, 0), V(0, 0, 1), 2.4), math.radians(-32), math.radians(90)),  # 12
    Part.LineSegment(V(10, 24.6, 0), V(7.7, 20.8, 0)),  # 13
    Part.LineSegment(V(7.7, 20.8, 0), V(1.5, 19.9, 0)),  # 14
    Part.LineSegment(V(1.5, 19.9, 0), V(1.5, 18.8, 0)),  # 15
    Part.ArcOfCircle(Part.Circle(V(0, 0, 0), V(0, 0, 1), 18.9), math.radians(35), math.radians(85)),  # 16
    Part.LineSegment(V(15.6, 10.7, 0), V(16.5, 11.2, 0)),  # 17
    Part.LineSegment(V(16.5, 11.2, 0), V(14.2, 17, 0)),  # 18
    Part.LineSegment(V(14.2, 17, 0), V(16.3, 21, 0)),  # 19
    Part.ArcOfCircle(Part.Circle(V(18.5, 19.8, 0), V(0, 0, 1), 2.4), math.radians(30), math.radians(152)),  # 20
    Part.LineSegment(V(20.6, 21.1, 0), V(28.5, 7.3, 0)),  # 21
    Part.ArcOfCircle(Part.Circle(V(26.4, 6.1, 0), V(0, 0, 1), 2.4), math.radians(-92), math.radians(30)),  # 22
    Part.LineSegment(V(26.3, 3.6, 0), V(21.9, 3.8, 0)),  # 23
    Part.LineSegment(V(21.9, 3.8, 0), V(18, 8.6, 0)),  # 24
    Part.LineSegment(V(18, 8.6, 0), V(17.1, 8.1, 0)),  # 25
    Part.ArcOfCircle(Part.Circle(V(0, 0, 0), V(0, 0, 1), 18.9), math.radians(-25), math.radians(25)),  # 26
    Part.LineSegment(V(17.1, -8.1, 0), V(18, -8.6, 0)),  # 27
    Part.LineSegment(V(18, -8.6, 0), V(21.9, -3.8, 0)),  # 28
    Part.LineSegment(V(21.9, -3.8, 0), V(26.3, -3.6, 0)),  # 29
    Part.ArcOfCircle(Part.Circle(V(26.4, -6.1, 0), V(0, 0, 1), 2.4), math.radians(-30), math.radians(92)),  # 30
    Part.LineSegment(V(28.5, -7.3, 0), V(20.6, -21.1, 0)),  # 31
    Part.ArcOfCircle(Part.Circle(V(18.5, -19.8, 0), V(0, 0, 1), 2.4), math.radians(-152), math.radians(-30)),  # 32
    Part.LineSegment(V(16.3, -21, 0), V(14.2, -17, 0)),  # 33
    Part.LineSegment(V(14.2, -17, 0), V(16.5, -11.2, 0)),  # 34
    Part.LineSegment(V(16.5, -11.2, 0), V(15.6, -10.7, 0)),  # 35
    Part.ArcOfCircle(Part.Circle(V(0, 0, 0), V(0, 0, 1), 18.9), math.radians(-85), math.radians(-35)),  # 36
    Part.LineSegment(V(1.5, -18.8, 0), V(1.5, -19.9, 0)),  # 37
    Part.LineSegment(V(1.5, -19.9, 0), V(7.7, -20.8, 0)),  # 38
    Part.LineSegment(V(7.7, -20.8, 0), V(10, -24.6, 0)),  # 39
    Part.ArcOfCircle(Part.Circle(V(8, -25.9, 0), V(0, 0, 1), 2.4), math.radians(-90), math.radians(32)),  # 40
    Part.LineSegment(V(8, -28.3, 0), V(-8, -28.3, 0)),  # 41
    Part.ArcOfCircle(Part.Circle(V(-8, -25.9, 0), V(0, 0, 1), 2.4), math.radians(148), math.radians(270)),  # 42
    Part.LineSegment(V(-10, -24.6, 0), V(-7.7, -20.8, 0)),  # 43
    Part.LineSegment(V(-7.7, -20.8, 0), V(-1.5, -19.9, 0)),  # 44
    Part.LineSegment(V(-1.5, -19.9, 0), V(-1.5, -18.8, 0)),  # 45
    Part.ArcOfCircle(Part.Circle(V(0, 0, 0), V(0, 0, 1), 18.9), math.radians(-145), math.radians(-95)),  # 46
    Part.LineSegment(V(-15.6, -10.7, 0), V(-16.5, -11.2, 0)),  # 47
    Part.LineSegment(V(-16.5, -11.2, 0), V(-14.2, -17, 0)),  # 48
    Part.LineSegment(V(-14.2, -17, 0), V(-16.3, -21, 0)),  # 49
    Part.ArcOfCircle(Part.Circle(V(-18.5, -19.8, 0), V(0, 0, 1), 2.4), math.radians(-150), math.radians(-28)),  # 50
    Part.LineSegment(V(-20.6, -21.1, 0), V(-28.5, -7.3, 0)),  # 51
    Part.ArcOfCircle(Part.Circle(V(-26.4, -6.1, 0), V(0, 0, 1), 2.4), math.radians(88), math.radians(210)),  # 52
    Part.LineSegment(V(-26.3, -3.6, 0), V(-21.9, -3.8, 0)),  # 53
    Part.LineSegment(V(-21.9, -3.8, 0), V(-18, -8.6, 0)),  # 54
    Part.LineSegment(V(-18, -8.6, 0), V(-17.1, -8.1, 0)),  # 55
    Part.ArcOfCircle(Part.Circle(V(0, 0, 0), V(0, 0, 1), 18.9), math.radians(155), math.radians(205)),  # 56
    Part.LineSegment(V(-17.1, 8.1, 0), V(-18, 8.6, 0)),  # 57
    Part.LineSegment(V(-18, 8.6, 0), V(-21.9, 3.8, 0)),  # 58
    Part.LineSegment(V(-21.9, 3.8, 0), V(-26.3, 3.6, 0)),  # 59
    Part.ArcOfCircle(Part.Circle(V(-26.4, 6.1, 0), V(0, 0, 1), 2.4), math.radians(150), math.radians(272)),  # 60
    Part.LineSegment(V(-28.5, 7.3, 0), V(-20.6, 21.1, 0)),  # 61
    Part.ArcOfCircle(Part.Circle(V(-18.5, 19.8, 0), V(0, 0, 1), 2.4), math.radians(28), math.radians(150)),  # 62
    Part.LineSegment(V(-16.3, 21, 0), V(-14.2, 17, 0)),  # 63
    Part.LineSegment(V(-14.2, 17, 0), V(-16.5, 11.2, 0)),  # 64
    Part.LineSegment(V(-16.5, 11.2, 0), V(-15.6, 10.7, 0)),  # 65
    Part.ArcOfCircle(Part.Circle(V(0, 0, 0), V(0, 0, 1), 18.9), math.radians(95), math.radians(145)),  # 66
    Part.LineSegment(V(-1.5, 18.8, 0), V(-1.5, 19.9, 0)),  # 67
    Part.LineSegment(V(-1.5, 19.9, 0), V(-7.7, 20.8, 0)),  # 68
    Part.LineSegment(V(-7.7, 20.8, 0), V(-10, 24.6, 0)),  # 69
    Part.ArcOfCircle(Part.Circle(V(-8, 25.9, 0), V(0, 0, 1), 2.4), math.radians(90), math.radians(212)),  # 70
    Part.LineSegment(V(-8, 28.3, 0), V(8, 28.3, 0)),  # 71
], False)
sketch7.addConstraint([
    Sketcher.Constraint("Coincident", 0, 2, 1, 2),
    Sketcher.Constraint("Coincident", 1, 1, 2, 1),
    Sketcher.Constraint("Coincident", 2, 2, 3, 2),
    Sketcher.Constraint("Coincident", 3, 1, 4, 1),
    Sketcher.Constraint("Coincident", 4, 2, 5, 2),
    Sketcher.Constraint("Coincident", 5, 1, 6, 1),
    Sketcher.Constraint("Coincident", 6, 2, 7, 2),
    Sketcher.Constraint("Coincident", 7, 1, 8, 1),
    Sketcher.Constraint("Coincident", 8, 2, 9, 2),
    Sketcher.Constraint("Coincident", 9, 1, 10, 1),
    Sketcher.Constraint("Coincident", 10, 2, 11, 2),
    Sketcher.Constraint("Coincident", 11, 1, 0, 1),
    Sketcher.Constraint("Tangent", 12, 1, 13, 1),
    Sketcher.Constraint("Coincident", 13, 2, 14, 1),
    Sketcher.Constraint("Coincident", 14, 2, 15, 1),
    Sketcher.Constraint("Coincident", 15, 2, 16, 2),
    Sketcher.Constraint("Coincident", 16, 1, 17, 1),
    Sketcher.Constraint("Coincident", 17, 2, 18, 1),
    Sketcher.Constraint("Coincident", 18, 2, 19, 1),
    Sketcher.Constraint("Tangent", 19, 2, 20, 2),
    Sketcher.Constraint("Tangent", 20, 1, 21, 1),
    Sketcher.Constraint("Tangent", 21, 2, 22, 2),
    Sketcher.Constraint("Tangent", 22, 1, 23, 1),
    Sketcher.Constraint("Coincident", 23, 2, 24, 1),
    Sketcher.Constraint("Coincident", 24, 2, 25, 1),
    Sketcher.Constraint("Coincident", 25, 2, 26, 2),
    Sketcher.Constraint("Coincident", 26, 1, 27, 1),
    Sketcher.Constraint("Coincident", 27, 2, 28, 1),
    Sketcher.Constraint("Coincident", 28, 2, 29, 1),
    Sketcher.Constraint("Tangent", 29, 2, 30, 2),
    Sketcher.Constraint("Tangent", 30, 1, 31, 1),
    Sketcher.Constraint("Tangent", 31, 2, 32, 2),
    Sketcher.Constraint("Tangent", 32, 1, 33, 1),
    Sketcher.Constraint("Coincident", 33, 2, 34, 1),
    Sketcher.Constraint("Coincident", 34, 2, 35, 1),
    Sketcher.Constraint("Coincident", 35, 2, 36, 2),
    Sketcher.Constraint("Coincident", 36, 1, 37, 1),
    Sketcher.Constraint("Coincident", 37, 2, 38, 1),
    Sketcher.Constraint("Coincident", 38, 2, 39, 1),
    Sketcher.Constraint("Tangent", 39, 2, 40, 2),
    Sketcher.Constraint("Tangent", 40, 1, 41, 1),
    Sketcher.Constraint("Tangent", 41, 2, 42, 2),
    Sketcher.Constraint("Tangent", 42, 1, 43, 1),
    Sketcher.Constraint("Coincident", 43, 2, 44, 1),
    Sketcher.Constraint("Coincident", 44, 2, 45, 1),
    Sketcher.Constraint("Coincident", 45, 2, 46, 2),
    Sketcher.Constraint("Coincident", 46, 1, 47, 1),
    Sketcher.Constraint("Coincident", 47, 2, 48, 1),
    Sketcher.Constraint("Coincident", 48, 2, 49, 1),
    Sketcher.Constraint("Tangent", 49, 2, 50, 2),
    Sketcher.Constraint("Tangent", 50, 1, 51, 1),
    Sketcher.Constraint("Tangent", 51, 2, 52, 2),
    Sketcher.Constraint("Tangent", 52, 1, 53, 1),
    Sketcher.Constraint("Coincident", 53, 2, 54, 1),
    Sketcher.Constraint("Coincident", 54, 2, 55, 1),
    Sketcher.Constraint("Coincident", 55, 2, 56, 2),
    Sketcher.Constraint("Coincident", 56, 1, 57, 1),
    Sketcher.Constraint("Coincident", 57, 2, 58, 1),
    Sketcher.Constraint("Coincident", 58, 2, 59, 1),
    Sketcher.Constraint("Tangent", 59, 2, 60, 2),
    Sketcher.Constraint("Tangent", 60, 1, 61, 1),
    Sketcher.Constraint("Tangent", 61, 2, 62, 2),
    Sketcher.Constraint("Tangent", 62, 1, 63, 1),
    Sketcher.Constraint("Coincident", 63, 2, 64, 1),
    Sketcher.Constraint("Coincident", 64, 2, 65, 1),
    Sketcher.Constraint("Coincident", 65, 2, 66, 2),
    Sketcher.Constraint("Coincident", 66, 1, 67, 1),
    Sketcher.Constraint("Coincident", 67, 2, 68, 1),
    Sketcher.Constraint("Coincident", 68, 2, 69, 1),
    Sketcher.Constraint("Tangent", 69, 2, 70, 2),
    Sketcher.Constraint("Tangent", 70, 1, 71, 1),
    Sketcher.Constraint("Tangent", 71, 2, 12, 2),
    Sketcher.Constraint("Vertical", 15),
    Sketcher.Constraint("Vertical", 37),
    Sketcher.Constraint("Horizontal", 41),
    Sketcher.Constraint("Vertical", 45),
    Sketcher.Constraint("Vertical", 67),
    Sketcher.Constraint("Horizontal", 71),
    Sketcher.Constraint("Coincident", 0, 3, -1, 1),
    Sketcher.Constraint("Coincident", 2, 3, -1, 1),
    Sketcher.Constraint("Coincident", 4, 3, -1, 1),
    Sketcher.Constraint("Coincident", 6, 3, -1, 1),
    Sketcher.Constraint("Coincident", 8, 3, -1, 1),
    Sketcher.Constraint("Coincident", 10, 3, -1, 1),
    Sketcher.Constraint("Coincident", 16, 3, -1, 1),
    Sketcher.Constraint("Coincident", 26, 3, -1, 1),
    Sketcher.Constraint("Coincident", 36, 3, -1, 1),
    Sketcher.Constraint("Coincident", 46, 3, -1, 1),
    Sketcher.Constraint("Coincident", 56, 3, -1, 1),
    Sketcher.Constraint("Coincident", 66, 3, -1, 1),
    Sketcher.Constraint("Equal", 0, 2),
    Sketcher.Constraint("Equal", 1, 3),
    Sketcher.Constraint("Equal", 2, 4),
    Sketcher.Constraint("Equal", 3, 5),
    Sketcher.Constraint("Equal", 4, 6),
    Sketcher.Constraint("Equal", 5, 7),
    Sketcher.Constraint("Equal", 6, 8),
    Sketcher.Constraint("Equal", 7, 9),
    Sketcher.Constraint("Equal", 8, 10),
    Sketcher.Constraint("Equal", 9, 11),
    Sketcher.Constraint("Equal", 12, 20),
    Sketcher.Constraint("Equal", 20, 22),
    Sketcher.Constraint("Equal", 16, 26),
    Sketcher.Constraint("Equal", 22, 30),
    Sketcher.Constraint("Equal", 30, 32),
    Sketcher.Constraint("Equal", 26, 36),
    Sketcher.Constraint("Equal", 32, 40),
    Sketcher.Constraint("Equal", 40, 42),
    Sketcher.Constraint("Equal", 36, 46),
    Sketcher.Constraint("Equal", 42, 50),
    Sketcher.Constraint("Equal", 50, 52),
    Sketcher.Constraint("Equal", 46, 56),
    Sketcher.Constraint("Equal", 52, 60),
    Sketcher.Constraint("Equal", 60, 62),
    Sketcher.Constraint("Equal", 56, 66),
    Sketcher.Constraint("Equal", 62, 70),
    Sketcher.Constraint("Symmetric", 1, 3, 7, 3, -1, 1),
    Sketcher.Constraint("Symmetric", 3, 3, 9, 3, -1, 1),
    Sketcher.Constraint("Symmetric", 5, 3, 11, 3, -1, 1),
    Sketcher.Constraint("Symmetric", 12, 3, 42, 3, -1, 1),
    Sketcher.Constraint("Symmetric", 20, 3, 50, 3, -1, 1),
    Sketcher.Constraint("Symmetric", 22, 3, 52, 3, -1, 1),
    Sketcher.Constraint("Symmetric", 30, 3, 60, 3, -1, 1),
    Sketcher.Constraint("Symmetric", 32, 3, 62, 3, -1, 1),
    Sketcher.Constraint("Symmetric", 13, 2, 43, 2, -1, 1),
    Sketcher.Constraint("Symmetric", 14, 2, 44, 2, -1, 1),
    Sketcher.Constraint("Symmetric", 17, 2, 47, 2, -1, 1),
    Sketcher.Constraint("Symmetric", 18, 2, 48, 2, -1, 1),
    Sketcher.Constraint("Symmetric", 23, 2, 53, 2, -1, 1),
    Sketcher.Constraint("Symmetric", 24, 2, 54, 2, -1, 1),
    Sketcher.Constraint("Symmetric", 27, 2, 57, 2, -1, 1),
    Sketcher.Constraint("Symmetric", 28, 2, 58, 2, -1, 1),
    Sketcher.Constraint("Symmetric", 33, 2, 63, 2, -1, 1),
    Sketcher.Constraint("Symmetric", 34, 2, 64, 2, -1, 1),
    Sketcher.Constraint("Symmetric", 37, 2, 67, 2, -1, 1),
    Sketcher.Constraint("Symmetric", 38, 2, 68, 2, -1, 1),
    Sketcher.Constraint("Symmetric", 3, 3, 5, 3, -2),
    Sketcher.Constraint("Symmetric", 32, 3, 50, 3, -2),
    Sketcher.Constraint("Symmetric", 30, 3, 52, 3, -2),
    Sketcher.Constraint("Symmetric", 39, 2, 42, 1, -2),
    Sketcher.Constraint("Symmetric", 37, 2, 44, 2, -2),
    Sketcher.Constraint("Symmetric", 34, 2, 47, 2, -2),
    Sketcher.Constraint("Symmetric", 33, 2, 48, 2, -2),
    Sketcher.Constraint("Symmetric", 28, 2, 53, 2, -2),
    Sketcher.Constraint("Symmetric", 27, 2, 54, 2, -2),
    Sketcher.Constraint("PointOnObject", 1, 3, -1),
    Sketcher.Constraint("Perpendicular", 17, 21),
    Sketcher.Constraint("Perpendicular", 21, 25),
    Sketcher.Constraint("Perpendicular", 27, 31),
    Sketcher.Constraint("Perpendicular", 31, 35),
    Sketcher.Constraint("Parallel", 25, 47),
    Sketcher.Constraint("Perpendicular", 51, 55),
    Sketcher.Constraint("Parallel", 35, 57),
    Sketcher.Constraint("Perpendicular", 61, 65),
    Sketcher.Constraint("Parallel", 39, 69),
    Sketcher.Constraint("Horizontal", 38, 2, 43, 2),
    Sketcher.Constraint("Equal", 14, 18),
    Sketcher.Constraint("Equal", 13, 19),
    Sketcher.Constraint("Equal", 19, 23),
    Sketcher.Constraint("Equal", 18, 24),
    Sketcher.Constraint("Equal", 17, 25),
    Sketcher.Constraint("Radius", 16, 18.9),
    Sketcher.Constraint("Angle", 17, Q("30 deg")),
    Sketcher.Constraint("Radius", 0, 30.62),
    Sketcher.Constraint("Radius", 1, 3.25),
    Sketcher.Constraint("Radius", 12, 2.44),
    Sketcher.Constraint("DistanceX", -1, 1, 14, 2, 1.5),
    Sketcher.Constraint("DistanceX", 1, 3, -1, 1, 30.62),
    Sketcher.Constraint("DistanceX", 3, 3, -1, 1, 15.31),
    Sketcher.Constraint("DistanceX", 41, 2, 41, 1, 15.91201),
    Sketcher.Constraint("DistanceY", 15, 2, 15, 1, 1.039879),
    Sketcher.Constraint("Distance", 17, 1.039879),
    Sketcher.Constraint("Distance", 21, 15.91201),
    Sketcher.Constraint("DistanceY", -1, 1, 12, 3, 25.90367),
    Sketcher.Constraint("DistanceX", -1, 1, 22, 3, 26.411239),
    Sketcher.Constraint("DistanceY", 2, 2, -1, 1, 24.745618),
    Sketcher.Constraint("DistanceX", -1, 1, 12, 1, 10.025121),
    Sketcher.Constraint("DistanceX", -1, 1, 13, 2, 7.661158),
    Sketcher.Constraint("DistanceX", -1, 1, 16, 1, 15.56625),
    Sketcher.Constraint("DistanceX", -1, 1, 23, 2, 21.868271),
    Sketcher.Constraint("DistanceY", -1, 1, 23, 2, 3.779308),
])
pad7 = body.newObject("PartDesign::Pad", "Pad006")
pad7.Profile = sketch7
pad7.Length = 1
doc.recompute()

fillet = body.newObject("PartDesign::Fillet", "Fillet")
fillet.Base = (pad7, edges_at(pad7, [
    (12.413, 27.991, 18.5),
    (-12.413, 27.991, 18.5),
    (-18.034, 24.746, 18.5),
    (-30.448, 3.245, 18.5),
    (-30.448, -3.245, 18.5),
    (-18.034, -24.746, 18.5),
    (-12.413, -27.991, 18.5),
    (12.413, -27.991, 18.5),
    (18.034, -24.746, 18.5),
    (30.448, -3.245, 18.5),
    (30.448, 3.245, 18.5),
    (18.034, 24.746, 18.5),
]))
fillet.Radius = 2

doc.recompute()
